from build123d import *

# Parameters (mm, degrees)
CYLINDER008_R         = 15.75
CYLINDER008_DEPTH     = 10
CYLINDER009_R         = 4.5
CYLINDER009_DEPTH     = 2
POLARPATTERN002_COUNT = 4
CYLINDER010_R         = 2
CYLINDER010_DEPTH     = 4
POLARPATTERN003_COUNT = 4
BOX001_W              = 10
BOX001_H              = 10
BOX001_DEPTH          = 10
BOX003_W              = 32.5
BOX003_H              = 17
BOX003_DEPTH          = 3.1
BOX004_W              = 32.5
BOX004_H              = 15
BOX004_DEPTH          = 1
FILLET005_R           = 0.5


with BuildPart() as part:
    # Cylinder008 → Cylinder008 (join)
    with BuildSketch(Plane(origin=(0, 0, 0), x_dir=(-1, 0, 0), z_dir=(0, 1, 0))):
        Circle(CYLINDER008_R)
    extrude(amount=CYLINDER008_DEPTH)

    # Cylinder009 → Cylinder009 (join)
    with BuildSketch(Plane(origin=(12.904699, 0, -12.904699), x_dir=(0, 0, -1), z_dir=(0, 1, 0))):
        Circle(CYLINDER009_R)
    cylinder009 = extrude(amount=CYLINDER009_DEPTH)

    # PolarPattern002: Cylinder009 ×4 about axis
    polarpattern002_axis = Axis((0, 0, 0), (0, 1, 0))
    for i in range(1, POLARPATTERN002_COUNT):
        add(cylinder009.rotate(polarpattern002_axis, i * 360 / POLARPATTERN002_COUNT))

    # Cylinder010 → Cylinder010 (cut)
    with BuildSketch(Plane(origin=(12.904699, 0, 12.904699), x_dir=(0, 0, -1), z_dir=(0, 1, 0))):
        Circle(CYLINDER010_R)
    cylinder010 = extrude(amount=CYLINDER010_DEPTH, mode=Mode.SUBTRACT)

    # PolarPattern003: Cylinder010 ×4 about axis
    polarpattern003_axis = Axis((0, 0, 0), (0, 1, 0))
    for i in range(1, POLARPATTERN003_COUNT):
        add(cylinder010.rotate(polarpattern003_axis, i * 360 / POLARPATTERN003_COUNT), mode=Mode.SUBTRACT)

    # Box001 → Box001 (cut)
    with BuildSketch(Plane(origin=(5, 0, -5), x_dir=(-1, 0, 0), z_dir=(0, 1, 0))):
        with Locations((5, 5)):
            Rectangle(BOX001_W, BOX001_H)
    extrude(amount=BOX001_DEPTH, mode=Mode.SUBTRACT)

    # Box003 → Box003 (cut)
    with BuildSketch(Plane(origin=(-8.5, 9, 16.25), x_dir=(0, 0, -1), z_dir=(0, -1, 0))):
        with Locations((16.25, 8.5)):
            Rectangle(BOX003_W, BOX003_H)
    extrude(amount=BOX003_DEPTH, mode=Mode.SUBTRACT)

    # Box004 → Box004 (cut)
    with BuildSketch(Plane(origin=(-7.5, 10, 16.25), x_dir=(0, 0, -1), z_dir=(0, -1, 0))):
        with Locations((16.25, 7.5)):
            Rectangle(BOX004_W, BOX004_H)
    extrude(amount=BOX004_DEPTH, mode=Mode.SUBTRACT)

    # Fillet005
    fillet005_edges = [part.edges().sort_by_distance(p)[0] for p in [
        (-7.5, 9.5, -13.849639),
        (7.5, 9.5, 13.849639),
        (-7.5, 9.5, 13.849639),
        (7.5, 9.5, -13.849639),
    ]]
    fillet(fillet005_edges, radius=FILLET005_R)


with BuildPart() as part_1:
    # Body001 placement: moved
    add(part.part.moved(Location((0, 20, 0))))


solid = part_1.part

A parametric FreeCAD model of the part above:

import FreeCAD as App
import Part
import Sketcher

V = App.Vector


def edges_at(feature, points):
    """Names of the edges that pass closest to the given points."""
    edges = feature.Shape.Edges
    near = lambda p: min(range(len(edges)), key=lambda i: edges[i].distToShape(Part.Vertex(*p))[0])
    return sorted({f"Edge{near(p) + 1}" for p in points})


def add_polygon(sketch, points):
    """Adds a closed chain of lines whose ends are joined by coincident constraints."""
    first, n = sketch.GeometryCount, len(points)
    for a, b in zip(points, points[1:] + points[:1]):
        sketch.addGeometry(Part.LineSegment(App.Vector(*a, 0), App.Vector(*b, 0)), False)
    for i in range(n):
        sketch.addConstraint(Sketcher.Constraint("Coincident", first + i, 2, first + (i + 1) % n, 1))

doc = App.newDocument("Part")
params = doc.addObject("Spreadsheet::Sheet", "Params")
for row, (alias, value) in enumerate([
    ("sketch1_diameter", "31.5 mm"),
    ("pad1_length", "10 mm"),
    ("sketch2_diameter", "9 mm"),
    ("pad2_length", "2 mm"),
    ("sketch3_diameter", "4 mm"),
    ("pocket1_length", "4 mm"),
    ("sketch4_width", "10 mm"),
    ("pocket2_length", "10 mm"),
    ("sketch5_width", "17 mm"),
    ("sketch5_height", "32.5 mm"),
    ("pocket3_length", "3.1 mm"),
    ("sketch6_width", "15 mm"),
    ("sketch6_height", "32.5 mm"),
    ("pocket4_length", "1 mm"),
    ("fillet_radius", "0.5 mm"),
], start=1):
    params.set(f"A{row}", alias)
    params.set(f"B{row}", "=" + value)
    params.setAlias(f"B{row}", alias)

body = doc.addObject("PartDesign::Body", "Body")

# Sketch on XZ plane
sketch1 = body.newObject("Sketcher::SketchObject", "Sketch")
sketch1.AttachmentSupport = (doc.getObject("XZ_Plane"), [""])
sketch1.MapMode = "FlatFace"
sketch1.addGeometry(Part.Circle(V(0, 0, 0), V(0, 0, 1), 16), False)
sketch1.addConstraint([
    Sketcher.Constraint("Coincident", 0, 3, -1, 1),
    Sketcher.Constraint("Diameter", 0, 31.5),
])
sketch1.setExpression("Constraints[1]", "Params.sketch1_diameter")
pad1 = body.newObject("PartDesign::Pad", "Pad")
pad1.Profile = sketch1
pad1.setExpression("Length", "Params.pad1_length")
pad1.Reversed = True

# Sketch on XZ plane
sketch2 = body.newObject("Sketcher::SketchObject", "Sketch001")
sketch2.AttachmentSupport = (doc.getObject("XZ_Plane"), [""])
sketch2.MapMode = "FlatFace"
sketch2.addGeometry(Part.Circle(V(12.9, -12.9, 0), V(0, 0, 1), 4.5), False)
sketch2.addConstraint([
    Sketcher.Constraint("Diameter", 0, 9.0),
    Sketcher.Constraint("DistanceX", -1, 1, 0, 3, 12.904699),
    Sketcher.Constraint("DistanceY", 0, 3, -1, 1, 12.904699),
])
sketch2.setExpression("Constraints[0]", "Params.sketch2_diameter")
pad2 = body.newObject("PartDesign::Pad", "Pad001")
pad2.Profile = sketch2
pad2.setExpression("Length", "Params.pad2_length")
pad2.Reversed = True
doc.recompute()

polarpattern = body.newObject("PartDesign::PolarPattern", "PolarPattern")
polarpattern.Originals = [pad2]
polarpattern.Axis = (doc.getObject("Y_Axis"), [""])
polarpattern.Angle = 360
polarpattern.Occurrences = 4
body.Tip = polarpattern

# Sketch on XZ plane
sketch3 = body.newObject("Sketcher::SketchObject", "Sketch002")
sketch3.AttachmentSupport = (doc.getObject("XZ_Plane"), [""])
sketch3.MapMode = "FlatFace"
sketch3.addGeometry(Part.Circle(V(12.9, 12.9, 0), V(0, 0, 1), 2), False)
sketch3.addConstraint([
    Sketcher.Constraint("Diameter", 0, 4.0),
    Sketcher.Constraint("DistanceX", -1, 1, 0, 3, 12.904699),
    Sketcher.Constraint("DistanceY", -1, 1, 0, 3, 12.904699),
])
sketch3.setExpression("Constraints[0]", "Params.sketch3_diameter")
pocket1 = body.newObject("PartDesign::Pocket", "Pocket")
pocket1.Profile = sketch3
pocket1.setExpression("Length", "Params.pocket1_length")
doc.recompute()

polarpattern2 = body.newObject("PartDesign::PolarPattern", "PolarPattern001")
polarpattern2.Originals = [pocket1]
polarpattern2.Axis = (doc.getObject("Y_Axis"), [""])
polarpattern2.Angle = 360
polarpattern2.Occurrences = 4
body.Tip = polarpattern2

# Sketch on XZ plane
sketch4 = body.newObject("Sketcher::SketchObject", "Sketch003")
sketch4.AttachmentSupport = (doc.getObject("XZ_Plane"), [""])
sketch4.MapMode = "FlatFace"
add_polygon(sketch4, [(5, 5), (5, -5), (-5, -5), (-5, 5)])  # lines 0-3
sketch4.addConstraint([
    Sketcher.Constraint("Vertical", 0),
    Sketcher.Constraint("Horizontal", 1),
    Sketcher.Constraint("Vertical", 2),
    Sketcher.Constraint("Horizontal", 3),
    Sketcher.Constraint("Symmetric", 0, 2, 2, 2, -1, 1),
    Sketcher.Constraint("Equal", 3, 0),
    Sketcher.Constraint("DistanceX", 1, 2, 1, 1, 10.0),
])
sketch4.setExpression("Constraints[10]", "Params.sketch4_width")
pocket2 = body.newObject("PartDesign::Pocket", "Pocket001")
pocket2.Profile = sketch4
pocket2.setExpression("Length", "Params.pocket2_length")

# Sketch on XZ plane
sketch5 = body.newObject("Sketcher::SketchObject", "Sketch004")
sketch5.AttachmentSupport = (doc.getObject("XZ_Plane"), [""])
sketch5.MapMode = "FlatFace"
sketch5.AttachmentOffset = App.Placement(V(0, 0, -9), App.Rotation())
add_polygon(sketch5, [(8, 16), (-8, 16), (-8, -16), (8, -16)])  # lines 0-3
sketch5.addConstraint([
    Sketcher.Constraint("Horizontal", 0),
    Sketcher.Constraint("Vertical", 1),
    Sketcher.Constraint("Horizontal", 2),
    Sketcher.Constraint("Vertical", 3),
    Sketcher.Constraint("Symmetric", 0, 2, 2, 2, -1, 1),
    Sketcher.Constraint("DistanceX", 0, 2, 0, 1, 17.0),
    Sketcher.Constraint("DistanceY", 1, 2, 1, 1, 32.5),
])
sketch5.setExpression("Constraints[9]", "Params.sketch5_width")
sketch5.setExpression("Constraints[10]", "Params.sketch5_height")
pocket3 = body.newObject("PartDesign::Pocket", "Pocket002")
pocket3.Profile = sketch5
pocket3.setExpression("Length", "Params.pocket3_length")
pocket3.Reversed = True

# Sketch on XZ plane
sketch6 = body.newObject("Sketcher::SketchObject", "Sketch005")
sketch6.AttachmentSupport = (doc.getObject("XZ_Plane"), [""])
sketch6.MapMode = "FlatFace"
sketch6.AttachmentOffset = App.Placement(V(0, 0, -10), App.Rotation())
add_polygon(sketch6, [(8, 16), (-8, 16), (-8, -16), (8, -16)])  # lines 0-3
sketch6.addConstraint([
    Sketcher.Constraint("Horizontal", 0),
    Sketcher.Constraint("Vertical", 1),
    Sketcher.Constraint("Horizontal", 2),
    Sketcher.Constraint("Vertical", 3),
    Sketcher.Constraint("Symmetric", 0, 2, 2, 2, -1, 1),
    Sketcher.Constraint("DistanceX", 0, 2, 0, 1, 15.0),
    Sketcher.Constraint("DistanceY", 1, 2, 1, 1, 32.5),
])
sketch6.setExpression("Constraints[9]", "Params.sketch6_width")
sketch6.setExpression("Constraints[10]", "Params.sketch6_height")
pocket4 = body.newObject("PartDesign::Pocket", "Pocket003")
pocket4.Profile = sketch6
pocket4.setExpression("Length", "Params.pocket4_length")
pocket4.Reversed = True
doc.recompute()

fillet = body.newObject("PartDesign::Fillet", "Fillet")
fillet.Base = (pocket4, edges_at(pocket4, [
    (-7.5, 9.5, -13.85),
    (7.5, 9.5, 13.85),
    (-7.5, 9.5, 13.85),
    (7.5, 9.5, -13.85),
]))
fillet.setExpression("Radius", "Params.fillet_radius")
body2 = doc.addObject("PartDesign::Body", "Body001")
doc.recompute()

body.Placement = App.Placement(V(0, 20, 0), App.Rotation(V(0, 0, 1), 0))
boolean = body2.newObject("PartDesign::Boolean", "Boolean")
boolean.Type = "Fuse"
boolean.addObjects([body])

doc.recompute()
